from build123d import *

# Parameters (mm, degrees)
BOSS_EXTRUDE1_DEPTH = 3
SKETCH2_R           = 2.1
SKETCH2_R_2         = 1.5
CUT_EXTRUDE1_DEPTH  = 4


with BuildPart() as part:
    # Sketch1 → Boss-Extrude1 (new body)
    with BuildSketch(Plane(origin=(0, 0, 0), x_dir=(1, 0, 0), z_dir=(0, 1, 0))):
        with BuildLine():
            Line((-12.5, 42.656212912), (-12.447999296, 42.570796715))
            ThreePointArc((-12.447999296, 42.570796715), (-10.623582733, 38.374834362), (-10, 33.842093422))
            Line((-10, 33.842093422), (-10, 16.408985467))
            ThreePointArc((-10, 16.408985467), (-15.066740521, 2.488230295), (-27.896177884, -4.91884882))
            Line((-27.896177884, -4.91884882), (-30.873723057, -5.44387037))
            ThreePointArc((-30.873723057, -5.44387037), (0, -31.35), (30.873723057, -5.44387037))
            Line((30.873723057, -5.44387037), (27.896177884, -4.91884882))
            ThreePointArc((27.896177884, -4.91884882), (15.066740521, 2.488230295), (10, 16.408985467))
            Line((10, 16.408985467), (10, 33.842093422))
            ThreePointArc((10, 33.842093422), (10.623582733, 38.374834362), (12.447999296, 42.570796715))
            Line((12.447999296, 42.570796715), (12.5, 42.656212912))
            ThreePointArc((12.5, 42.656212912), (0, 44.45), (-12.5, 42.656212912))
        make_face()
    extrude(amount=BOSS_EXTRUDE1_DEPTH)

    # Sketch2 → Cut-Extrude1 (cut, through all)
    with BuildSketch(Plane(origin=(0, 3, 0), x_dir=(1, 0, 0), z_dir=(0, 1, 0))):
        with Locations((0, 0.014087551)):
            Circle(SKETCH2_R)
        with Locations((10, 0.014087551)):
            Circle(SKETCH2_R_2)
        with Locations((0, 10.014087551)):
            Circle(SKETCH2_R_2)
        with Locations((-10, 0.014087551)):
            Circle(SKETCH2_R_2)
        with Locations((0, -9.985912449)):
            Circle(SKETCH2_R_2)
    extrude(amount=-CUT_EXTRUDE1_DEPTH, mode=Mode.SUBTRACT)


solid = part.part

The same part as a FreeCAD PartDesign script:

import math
import FreeCAD as App
import Part
import Sketcher

V = App.Vector
Q = App.Units.Quantity

doc = App.newDocument("Part")
body = doc.addObject("PartDesign::Body", "Body")

sketch1 = body.newObject("Sketcher::SketchObject", "Sketch")
sketch1.AttachmentSupport = (doc.getObject("XZ_Plane"), [""])
sketch1.MapMode = "FlatFace"
sketch1.addGeometry([
    Part.LineSegment(V(-12.5, -42.66, 0), V(-12.45, -42.57, 0)),
    Part.ArcOfCircle(Part.Circle(V(-26.79, -33.84, 0), V(0, 0, 1), 16.79), math.radians(-31), math.radians(0)),
    Part.LineSegment(V(-10, -33.84, 0), V(-10, -16.41, 0)),
    Part.ArcOfCircle(Part.Circle(V(-31.66, -16.41, 0), V(0, 0, 1), 21.66), math.radians(0), math.radians(80)),
    Part.LineSegment(V(-27.9, 4.92, 0), V(-30.87, 5.44, 0)),
    Part.ArcOfCircle(Part.Circle(V(0, 0, 0), V(0, 0, 1), 31.35), math.radians(10), math.radians(170)),
    Part.LineSegment(V(30.87, 5.44, 0), V(27.9, 4.92, 0)),
    Part.ArcOfCircle(Part.Circle(V(31.66, -16.41, 0), V(0, 0, 1), 21.66), math.radians(100), math.radians(180)),
    Part.LineSegment(V(10, -16.41, 0), V(10, -33.84, 0)),
    Part.ArcOfCircle(Part.Circle(V(26.79, -33.84, 0), V(0, 0, 1), 16.79), math.radians(180), math.radians(211)),
    Part.LineSegment(V(12.45, -42.57, 0), V(12.5, -42.66, 0)),
    Part.ArcOfCircle(Part.Circle(V(0, 0, 0), V(0, 0, 1), 44.45), math.radians(-106), math.radians(-74)),
], False)
sketch1.addConstraint([
    Sketcher.Constraint("Tangent", 0, 2, 1, 1),
    Sketcher.Constraint("Tangent", 1, 2, 2, 1),
    Sketcher.Constraint("Tangent", 2, 2, 3, 1),
    Sketcher.Constraint("Tangent", 3, 2, 4, 1),
    Sketcher.Constraint("Coincident", 4, 2, 5, 2),
    Sketcher.Constraint("Coincident", 5, 1, 6, 1),
    Sketcher.Constraint("Tangent", 6, 2, 7, 1),
    Sketcher.Constraint("Tangent", 7, 2, 8, 1),
    Sketcher.Constraint("Tangent", 8, 2, 9, 1),
    Sketcher.Constraint("Tangent", 9, 2, 10, 1),
    Sketcher.Constraint("Coincident", 10, 2, 11, 2),
    Sketcher.Constraint("Coincident", 11, 1, 0, 1),
    Sketcher.Constraint("Vertical", 2),
    Sketcher.Constraint("Vertical", 8),
    Sketcher.Constraint("Coincident", 5, 3, -1, 1),
    Sketcher.Constraint("Coincident", 11, 3, -1, 1),
    Sketcher.Constraint("Equal", 3, 7),
    Sketcher.Constraint("Equal", 1, 9),
    Sketcher.Constraint("Symmetric", 3, 3, 7, 3, -2),
    Sketcher.Constraint("Symmetric", 0, 2, 9, 2, -2),
    Sketcher.Constraint("Horizontal", 4, 2, 5, 1),
    Sketcher.Constraint("Angle", 4, Q("170 deg")),
    Sketcher.Constraint("Radius", 5, Q("31.35 mm")),
    Sketcher.Constraint("Radius", 11, Q("44.45 mm")),
    Sketcher.Constraint("DistanceX", 1, 2, -1, 1, Q("10 mm")),
    Sketcher.Constraint("Distance", 0, Q("0.1 mm")),
    Sketcher.Constraint("DistanceX", -1, 1, 10, 2, Q("12.5 mm")),
    Sketcher.Constraint("Radius", 1, Q("16.78574 mm")),
    Sketcher.Constraint("Radius", 3, Q("21.656851 mm")),
    Sketcher.Constraint("Distance", 4, Q("3.023479 mm")),
])
pad1 = body.newObject("PartDesign::Pad", "Pad")
pad1.Profile = sketch1
pad1.Length = 3
pad1.Reversed = True

sketch2 = body.newObject("Sketcher::SketchObject", "Sketch001")
sketch2.AttachmentSupport = (doc.getObject("XZ_Plane"), [""])
sketch2.MapMode = "FlatFace"
sketch2.AttachmentOffset = App.Placement(V(0, 0, -3), App.Rotation())
sketch2.addGeometry([
    Part.Circle(V(0, 0, 0), V(0, 0, 1), 2.1),
    Part.Circle(V(10, 0, 0), V(0, 0, 1), 1.5),
    Part.Circle(V(0, -10, 0), V(0, 0, 1), 1.5),
    Part.Circle(V(-10, 0, 0), V(0, 0, 1), 1.5),
    Part.Circle(V(0, 10, 0), V(0, 0, 1), 1.5),
], False)
sketch2.addConstraint([
    Sketcher.Constraint("Equal", 1, 2),
    Sketcher.Constraint("Equal", 2, 3),
    Sketcher.Constraint("Equal", 3, 4),
    Sketcher.Constraint("Symmetric", 1, 3, 3, 3, -2),
    Sketcher.Constraint("PointOnObject", 0, 3, -2),
    Sketcher.Constraint("PointOnObject", 2, 3, -2),
    Sketcher.Constraint("PointOnObject", 4, 3, -2),
    Sketcher.Constraint("Horizontal", 0, 3, 1, 3),
    Sketcher.Constraint("Diameter", 1, Q("3 mm")),
    Sketcher.Constraint("Diameter", 0, Q("4.2 mm")),
    Sketcher.Constraint("DistanceX", -1, 1, 1, 3, Q("10 mm")),
    Sketcher.Constraint("DistanceY", 2, 3, 0, 3, Q("10 mm")),
    Sketcher.Constraint("DistanceY", 0, 3, 4, 3, Q("10 mm")),
    Sketcher.Constraint("DistanceY", 0, 3, -1, 1, Q("0.014088 mm")),
])
pocket1 = body.newObject("PartDesign::Pocket", "Pocket")
pocket1.Profile = sketch2
pocket1.Type = "ThroughAll"
pocket1.Reversed = True

doc.recompute()
